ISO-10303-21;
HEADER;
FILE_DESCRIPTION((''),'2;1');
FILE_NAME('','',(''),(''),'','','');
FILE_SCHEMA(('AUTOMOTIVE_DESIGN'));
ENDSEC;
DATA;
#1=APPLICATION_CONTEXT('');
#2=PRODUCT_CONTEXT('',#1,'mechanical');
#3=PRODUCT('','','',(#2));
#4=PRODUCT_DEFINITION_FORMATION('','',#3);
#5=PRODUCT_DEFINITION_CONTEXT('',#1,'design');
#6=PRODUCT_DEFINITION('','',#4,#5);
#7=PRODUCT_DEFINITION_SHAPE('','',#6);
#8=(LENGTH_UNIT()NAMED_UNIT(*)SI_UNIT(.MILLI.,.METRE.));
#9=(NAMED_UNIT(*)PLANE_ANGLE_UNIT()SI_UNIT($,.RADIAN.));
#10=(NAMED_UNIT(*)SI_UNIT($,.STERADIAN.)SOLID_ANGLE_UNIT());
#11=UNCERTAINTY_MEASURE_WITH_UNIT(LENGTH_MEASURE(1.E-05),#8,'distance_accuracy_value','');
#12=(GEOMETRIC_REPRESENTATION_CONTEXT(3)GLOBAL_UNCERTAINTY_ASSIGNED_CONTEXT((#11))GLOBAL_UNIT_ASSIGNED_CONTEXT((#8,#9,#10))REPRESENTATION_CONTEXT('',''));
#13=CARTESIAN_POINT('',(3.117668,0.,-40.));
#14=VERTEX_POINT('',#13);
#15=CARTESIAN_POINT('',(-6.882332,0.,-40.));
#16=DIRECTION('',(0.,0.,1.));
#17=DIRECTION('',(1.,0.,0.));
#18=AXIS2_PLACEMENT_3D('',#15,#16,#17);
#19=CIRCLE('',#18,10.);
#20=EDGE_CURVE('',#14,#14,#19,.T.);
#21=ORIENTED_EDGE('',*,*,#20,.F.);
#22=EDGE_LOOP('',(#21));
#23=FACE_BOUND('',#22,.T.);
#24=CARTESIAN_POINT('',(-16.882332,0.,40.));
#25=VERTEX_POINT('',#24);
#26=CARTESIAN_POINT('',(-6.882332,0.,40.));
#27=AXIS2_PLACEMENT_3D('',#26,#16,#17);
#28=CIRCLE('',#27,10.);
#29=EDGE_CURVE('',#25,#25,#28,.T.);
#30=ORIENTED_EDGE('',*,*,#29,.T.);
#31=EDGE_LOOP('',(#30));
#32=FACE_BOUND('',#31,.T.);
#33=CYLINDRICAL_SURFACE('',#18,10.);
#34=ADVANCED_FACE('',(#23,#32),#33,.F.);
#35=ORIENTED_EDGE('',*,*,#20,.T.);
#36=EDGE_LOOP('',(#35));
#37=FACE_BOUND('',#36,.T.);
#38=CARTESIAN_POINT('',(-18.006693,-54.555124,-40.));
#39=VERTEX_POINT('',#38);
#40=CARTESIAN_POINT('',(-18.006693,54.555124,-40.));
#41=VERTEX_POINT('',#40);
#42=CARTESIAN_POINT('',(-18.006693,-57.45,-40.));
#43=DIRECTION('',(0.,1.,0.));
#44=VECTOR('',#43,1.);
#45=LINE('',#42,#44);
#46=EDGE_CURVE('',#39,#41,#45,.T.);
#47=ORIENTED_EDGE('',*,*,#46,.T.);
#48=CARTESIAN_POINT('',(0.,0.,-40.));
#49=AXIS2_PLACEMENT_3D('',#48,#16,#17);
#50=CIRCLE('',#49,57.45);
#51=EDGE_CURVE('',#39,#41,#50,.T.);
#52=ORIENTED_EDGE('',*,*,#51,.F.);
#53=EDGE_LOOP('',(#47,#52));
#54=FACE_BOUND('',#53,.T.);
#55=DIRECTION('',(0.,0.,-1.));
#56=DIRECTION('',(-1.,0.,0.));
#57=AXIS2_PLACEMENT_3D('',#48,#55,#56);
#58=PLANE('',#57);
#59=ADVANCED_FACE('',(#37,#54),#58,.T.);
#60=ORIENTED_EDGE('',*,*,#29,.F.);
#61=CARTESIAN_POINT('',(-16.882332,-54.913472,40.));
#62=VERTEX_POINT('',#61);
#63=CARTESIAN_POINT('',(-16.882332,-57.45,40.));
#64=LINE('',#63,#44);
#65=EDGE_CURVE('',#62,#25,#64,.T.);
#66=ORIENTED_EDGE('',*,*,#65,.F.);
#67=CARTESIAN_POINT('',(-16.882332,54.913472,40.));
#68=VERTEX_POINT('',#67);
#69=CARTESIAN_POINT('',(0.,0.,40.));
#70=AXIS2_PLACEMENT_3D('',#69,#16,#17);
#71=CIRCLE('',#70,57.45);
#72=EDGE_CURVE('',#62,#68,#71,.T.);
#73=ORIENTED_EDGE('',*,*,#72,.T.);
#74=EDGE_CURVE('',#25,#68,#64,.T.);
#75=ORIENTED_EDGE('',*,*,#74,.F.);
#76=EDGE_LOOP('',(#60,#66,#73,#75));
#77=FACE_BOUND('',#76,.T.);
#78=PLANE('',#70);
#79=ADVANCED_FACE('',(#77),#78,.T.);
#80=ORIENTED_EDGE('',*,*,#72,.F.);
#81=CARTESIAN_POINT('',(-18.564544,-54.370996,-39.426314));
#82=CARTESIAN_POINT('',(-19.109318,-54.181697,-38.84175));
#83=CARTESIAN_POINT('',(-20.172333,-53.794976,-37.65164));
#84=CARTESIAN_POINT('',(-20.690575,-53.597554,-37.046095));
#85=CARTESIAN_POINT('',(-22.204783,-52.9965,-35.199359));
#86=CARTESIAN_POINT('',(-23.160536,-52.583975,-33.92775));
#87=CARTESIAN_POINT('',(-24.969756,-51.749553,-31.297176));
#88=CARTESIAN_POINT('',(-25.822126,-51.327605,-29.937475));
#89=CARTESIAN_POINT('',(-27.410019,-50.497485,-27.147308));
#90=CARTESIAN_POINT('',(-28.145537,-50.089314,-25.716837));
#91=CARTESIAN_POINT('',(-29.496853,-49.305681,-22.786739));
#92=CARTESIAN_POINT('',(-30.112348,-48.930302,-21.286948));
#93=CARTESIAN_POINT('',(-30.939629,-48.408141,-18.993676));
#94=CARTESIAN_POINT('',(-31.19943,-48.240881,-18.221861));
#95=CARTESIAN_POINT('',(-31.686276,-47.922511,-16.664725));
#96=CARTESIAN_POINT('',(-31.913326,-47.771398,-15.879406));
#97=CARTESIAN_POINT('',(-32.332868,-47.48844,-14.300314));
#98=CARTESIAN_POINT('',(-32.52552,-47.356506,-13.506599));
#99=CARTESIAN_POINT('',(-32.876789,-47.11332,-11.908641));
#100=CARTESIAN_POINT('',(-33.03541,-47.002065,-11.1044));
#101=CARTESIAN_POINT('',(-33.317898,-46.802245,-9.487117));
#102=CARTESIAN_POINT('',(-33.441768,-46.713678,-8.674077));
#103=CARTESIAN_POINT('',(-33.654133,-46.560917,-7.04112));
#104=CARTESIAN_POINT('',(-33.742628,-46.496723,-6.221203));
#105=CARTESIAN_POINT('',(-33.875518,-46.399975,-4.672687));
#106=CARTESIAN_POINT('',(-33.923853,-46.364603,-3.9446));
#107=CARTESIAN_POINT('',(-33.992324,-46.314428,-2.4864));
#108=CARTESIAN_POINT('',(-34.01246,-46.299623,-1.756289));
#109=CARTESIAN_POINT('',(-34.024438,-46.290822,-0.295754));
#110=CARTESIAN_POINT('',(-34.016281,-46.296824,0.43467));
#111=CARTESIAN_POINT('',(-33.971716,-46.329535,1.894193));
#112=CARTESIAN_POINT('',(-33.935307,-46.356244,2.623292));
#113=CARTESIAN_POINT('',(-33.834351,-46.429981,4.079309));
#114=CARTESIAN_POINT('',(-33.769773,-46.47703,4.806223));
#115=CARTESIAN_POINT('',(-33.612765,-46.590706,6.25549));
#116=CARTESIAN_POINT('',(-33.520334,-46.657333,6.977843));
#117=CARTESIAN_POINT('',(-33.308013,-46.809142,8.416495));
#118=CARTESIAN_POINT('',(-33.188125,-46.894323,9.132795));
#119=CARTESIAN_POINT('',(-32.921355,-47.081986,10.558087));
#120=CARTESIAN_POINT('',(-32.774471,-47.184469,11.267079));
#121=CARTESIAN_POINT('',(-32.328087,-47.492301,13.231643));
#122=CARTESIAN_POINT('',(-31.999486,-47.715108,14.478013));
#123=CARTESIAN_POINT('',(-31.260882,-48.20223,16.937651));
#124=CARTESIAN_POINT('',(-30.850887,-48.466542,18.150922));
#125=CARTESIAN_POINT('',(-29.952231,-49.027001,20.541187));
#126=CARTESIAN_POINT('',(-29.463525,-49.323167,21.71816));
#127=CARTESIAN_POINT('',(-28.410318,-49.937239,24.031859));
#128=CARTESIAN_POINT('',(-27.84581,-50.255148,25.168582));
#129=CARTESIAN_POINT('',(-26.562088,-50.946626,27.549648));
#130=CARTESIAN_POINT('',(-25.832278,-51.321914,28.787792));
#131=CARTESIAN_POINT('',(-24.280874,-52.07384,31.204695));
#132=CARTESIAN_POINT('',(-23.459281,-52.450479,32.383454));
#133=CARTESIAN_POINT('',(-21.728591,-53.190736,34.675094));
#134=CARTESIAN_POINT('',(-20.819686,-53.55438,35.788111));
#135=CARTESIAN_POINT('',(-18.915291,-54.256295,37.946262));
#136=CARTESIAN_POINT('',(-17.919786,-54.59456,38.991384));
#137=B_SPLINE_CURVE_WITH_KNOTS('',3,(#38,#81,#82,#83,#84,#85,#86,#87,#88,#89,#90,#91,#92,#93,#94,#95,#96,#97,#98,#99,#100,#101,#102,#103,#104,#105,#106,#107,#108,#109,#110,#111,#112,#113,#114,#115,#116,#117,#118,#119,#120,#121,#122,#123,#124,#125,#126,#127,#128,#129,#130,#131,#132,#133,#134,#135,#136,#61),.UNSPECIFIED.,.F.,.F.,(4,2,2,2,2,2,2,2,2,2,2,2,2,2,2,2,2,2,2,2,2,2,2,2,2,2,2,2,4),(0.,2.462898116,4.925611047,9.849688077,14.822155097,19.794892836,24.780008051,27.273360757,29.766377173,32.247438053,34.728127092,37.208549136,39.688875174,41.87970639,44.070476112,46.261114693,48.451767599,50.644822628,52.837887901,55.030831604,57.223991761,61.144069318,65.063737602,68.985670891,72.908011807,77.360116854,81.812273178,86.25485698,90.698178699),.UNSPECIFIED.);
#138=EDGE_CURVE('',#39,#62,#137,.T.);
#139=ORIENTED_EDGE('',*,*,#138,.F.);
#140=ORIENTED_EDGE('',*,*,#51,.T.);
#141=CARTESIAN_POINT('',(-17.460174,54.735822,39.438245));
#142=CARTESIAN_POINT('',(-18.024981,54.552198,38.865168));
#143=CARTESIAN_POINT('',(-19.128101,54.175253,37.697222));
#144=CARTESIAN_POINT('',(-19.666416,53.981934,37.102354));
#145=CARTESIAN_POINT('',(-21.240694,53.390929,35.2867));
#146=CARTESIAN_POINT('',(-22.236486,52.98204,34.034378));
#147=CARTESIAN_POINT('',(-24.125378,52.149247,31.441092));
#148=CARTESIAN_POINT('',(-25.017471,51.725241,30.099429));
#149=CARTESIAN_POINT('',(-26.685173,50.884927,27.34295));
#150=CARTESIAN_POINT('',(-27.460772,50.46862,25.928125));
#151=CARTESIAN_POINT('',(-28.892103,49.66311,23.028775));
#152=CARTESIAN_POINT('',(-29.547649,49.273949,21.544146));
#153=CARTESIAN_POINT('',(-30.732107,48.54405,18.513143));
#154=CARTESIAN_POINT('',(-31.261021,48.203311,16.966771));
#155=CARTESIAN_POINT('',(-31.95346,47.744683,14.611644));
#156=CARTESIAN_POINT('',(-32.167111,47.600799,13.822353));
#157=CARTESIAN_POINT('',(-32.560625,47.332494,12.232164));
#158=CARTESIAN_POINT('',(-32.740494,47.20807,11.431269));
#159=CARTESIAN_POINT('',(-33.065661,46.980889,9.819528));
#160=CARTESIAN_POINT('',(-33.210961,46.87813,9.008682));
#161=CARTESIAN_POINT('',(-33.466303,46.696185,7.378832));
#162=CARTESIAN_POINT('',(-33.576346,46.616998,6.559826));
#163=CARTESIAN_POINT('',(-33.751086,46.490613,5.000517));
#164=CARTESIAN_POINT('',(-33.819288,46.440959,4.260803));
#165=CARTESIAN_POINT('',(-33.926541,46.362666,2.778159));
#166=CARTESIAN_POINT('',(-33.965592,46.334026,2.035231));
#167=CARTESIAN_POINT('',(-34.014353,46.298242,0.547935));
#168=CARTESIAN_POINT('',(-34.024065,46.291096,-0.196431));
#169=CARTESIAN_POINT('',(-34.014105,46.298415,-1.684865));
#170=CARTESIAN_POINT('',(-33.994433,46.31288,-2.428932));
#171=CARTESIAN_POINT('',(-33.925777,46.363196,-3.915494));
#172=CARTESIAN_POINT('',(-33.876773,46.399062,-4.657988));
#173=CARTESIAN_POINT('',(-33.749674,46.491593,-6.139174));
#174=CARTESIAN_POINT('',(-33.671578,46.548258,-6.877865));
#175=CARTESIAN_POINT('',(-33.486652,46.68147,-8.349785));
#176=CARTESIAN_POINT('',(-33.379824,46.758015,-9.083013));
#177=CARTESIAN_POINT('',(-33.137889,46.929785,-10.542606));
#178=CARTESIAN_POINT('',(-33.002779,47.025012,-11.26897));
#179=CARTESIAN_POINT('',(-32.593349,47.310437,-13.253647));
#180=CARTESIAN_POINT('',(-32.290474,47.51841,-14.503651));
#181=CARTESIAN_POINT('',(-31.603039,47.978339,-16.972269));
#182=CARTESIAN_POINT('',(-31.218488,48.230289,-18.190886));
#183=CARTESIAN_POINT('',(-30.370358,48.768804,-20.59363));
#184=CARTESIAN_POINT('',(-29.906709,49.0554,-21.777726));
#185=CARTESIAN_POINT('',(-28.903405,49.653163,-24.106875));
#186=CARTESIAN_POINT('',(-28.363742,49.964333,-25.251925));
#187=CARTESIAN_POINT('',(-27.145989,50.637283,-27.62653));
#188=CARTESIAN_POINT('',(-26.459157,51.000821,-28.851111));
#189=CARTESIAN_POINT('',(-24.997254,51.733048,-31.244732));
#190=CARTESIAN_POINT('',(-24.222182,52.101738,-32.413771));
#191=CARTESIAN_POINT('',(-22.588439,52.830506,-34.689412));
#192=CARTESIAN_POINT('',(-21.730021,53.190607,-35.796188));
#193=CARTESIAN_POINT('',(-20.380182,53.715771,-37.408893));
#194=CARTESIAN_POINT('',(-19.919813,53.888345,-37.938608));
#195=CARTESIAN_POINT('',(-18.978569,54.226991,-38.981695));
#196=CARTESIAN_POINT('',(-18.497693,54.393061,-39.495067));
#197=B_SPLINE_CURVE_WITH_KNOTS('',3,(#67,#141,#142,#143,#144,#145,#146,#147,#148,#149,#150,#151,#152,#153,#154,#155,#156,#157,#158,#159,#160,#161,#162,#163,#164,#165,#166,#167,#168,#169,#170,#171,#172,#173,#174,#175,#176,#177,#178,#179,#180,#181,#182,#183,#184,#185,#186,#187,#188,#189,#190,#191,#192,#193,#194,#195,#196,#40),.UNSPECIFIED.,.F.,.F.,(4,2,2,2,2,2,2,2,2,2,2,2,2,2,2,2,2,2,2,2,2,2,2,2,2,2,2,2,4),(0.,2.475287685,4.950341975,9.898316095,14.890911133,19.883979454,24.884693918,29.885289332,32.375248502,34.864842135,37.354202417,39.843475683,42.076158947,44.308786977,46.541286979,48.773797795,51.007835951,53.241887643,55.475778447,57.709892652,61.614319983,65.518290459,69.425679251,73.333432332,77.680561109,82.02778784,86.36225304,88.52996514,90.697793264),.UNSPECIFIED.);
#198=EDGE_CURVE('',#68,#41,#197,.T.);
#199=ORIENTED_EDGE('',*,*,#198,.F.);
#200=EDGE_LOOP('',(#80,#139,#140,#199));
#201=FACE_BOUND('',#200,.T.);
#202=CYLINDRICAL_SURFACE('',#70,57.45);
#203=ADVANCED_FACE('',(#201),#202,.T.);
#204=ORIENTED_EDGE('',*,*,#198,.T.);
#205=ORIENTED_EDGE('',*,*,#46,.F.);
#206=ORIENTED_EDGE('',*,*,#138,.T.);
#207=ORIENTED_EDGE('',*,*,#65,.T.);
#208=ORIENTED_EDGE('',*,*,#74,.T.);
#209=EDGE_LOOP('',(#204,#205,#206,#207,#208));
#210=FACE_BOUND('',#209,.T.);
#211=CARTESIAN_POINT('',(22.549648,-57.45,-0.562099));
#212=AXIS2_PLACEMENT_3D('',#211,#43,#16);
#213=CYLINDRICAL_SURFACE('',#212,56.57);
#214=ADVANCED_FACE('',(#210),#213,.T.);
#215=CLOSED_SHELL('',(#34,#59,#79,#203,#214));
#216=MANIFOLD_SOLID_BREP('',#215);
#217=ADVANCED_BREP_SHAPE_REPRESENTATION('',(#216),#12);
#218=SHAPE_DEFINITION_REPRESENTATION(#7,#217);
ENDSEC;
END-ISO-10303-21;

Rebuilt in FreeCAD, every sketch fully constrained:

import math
import FreeCAD as App
import Part
import Sketcher
Q = App.Units.Quantity

doc = App.newDocument("Part")
body = doc.addObject("PartDesign::Body", "Body")

# Sketch on XZ plane
sketch1 = body.newObject("Sketcher::SketchObject", "Sketch")
sketch1.AttachmentSupport = (doc.getObject("XZ_Plane"), [""])
sketch1.MapMode = "FlatFace"
sketch1.addGeometry([
    Part.LineSegment(App.Vector(0, -40, 0), App.Vector(0, 40, 0)),
    Part.LineSegment(App.Vector(0, 40, 0), App.Vector(57, 40, 0)),
    Part.LineSegment(App.Vector(57, 40, 0), App.Vector(57, -40, 0)),
    Part.LineSegment(App.Vector(57, -40, 0), App.Vector(0, -40, 0)),
], False)
sketch1.addConstraint([
    Sketcher.Constraint("Coincident", 0, 2, 1, 1),
    Sketcher.Constraint("Coincident", 1, 2, 2, 1),
    Sketcher.Constraint("Coincident", 2, 2, 3, 1),
    Sketcher.Constraint("Coincident", 3, 2, 0, 1),
    Sketcher.Constraint("Vertical", 0),
    Sketcher.Constraint("Horizontal", 1),
    Sketcher.Constraint("Vertical", 2),
    Sketcher.Constraint("Horizontal", 3),
    Sketcher.Constraint("Symmetric", 0, 2, 3, 2, -1, 1),
    Sketcher.Constraint("DistanceY", 0, 1, 0, 2, Q("80 mm")),
    Sketcher.Constraint("DistanceX", 1, 1, 1, 2, Q("57.45 mm")),
])
revolution = body.newObject("PartDesign::Revolution", "Revolution")
revolution.Profile = sketch1
revolution.ReferenceAxis = (sketch1, ["V_Axis"])
revolution.Angle = 360

# Sketch on XZ plane
sketch2 = body.newObject("Sketcher::SketchObject", "Sketch001")
sketch2.AttachmentSupport = (doc.getObject("XZ_Plane"), [""])
sketch2.MapMode = "FlatFace"
sketch2.addGeometry([
    Part.LineSegment(App.Vector(-18, -40, 0), App.Vector(-57, -40, 0)),
    Part.LineSegment(App.Vector(-57, -40, 0), App.Vector(-57, 40, 0)),
    Part.LineSegment(App.Vector(-57, 40, 0), App.Vector(-17, 40, 0)),
    Part.ArcOfCircle(Part.Circle(App.Vector(23, -1, 0), App.Vector(0, 0, 1), 57), math.radians(134), math.radians(224)),
], False)
sketch2.addConstraint([
    Sketcher.Constraint("Coincident", 0, 2, 1, 1),
    Sketcher.Constraint("Coincident", 1, 2, 2, 1),
    Sketcher.Constraint("Coincident", 2, 2, 3, 1),
    Sketcher.Constraint("Coincident", 3, 2, 0, 1),
    Sketcher.Constraint("Horizontal", 0),
    Sketcher.Constraint("Vertical", 1),
    Sketcher.Constraint("Horizontal", 2),
    Sketcher.Constraint("DistanceY", 1, 1, 1, 2, Q("80 mm")),
    Sketcher.Constraint("Radius", 3, Q("56.57 mm")),
    Sketcher.Constraint("DistanceY", 0, 2, -1, 1, Q("40 mm")),
    Sketcher.Constraint("DistanceX", 0, 2, -1, 1, Q("57.45 mm")),
    Sketcher.Constraint("DistanceX", 2, 1, 2, 2, Q("40.567668 mm")),
    Sketcher.Constraint("DistanceY", 3, 3, -1, 1, Q("0.562099 mm")),
])
pocket1 = body.newObject("PartDesign::Pocket", "Pocket")
pocket1.Profile = sketch2
pocket1.Type = "ThroughAll"
pocket1.Midplane = True

# Sketch on XY plane
sketch3 = body.newObject("Sketcher::SketchObject", "Sketch002")
sketch3.AttachmentSupport = (doc.getObject("XY_Plane"), [""])
sketch3.MapMode = "FlatFace"
sketch3.AttachmentOffset = App.Placement(App.Vector(0, 0, 40), App.Rotation())
sketch3.addGeometry(Part.Circle(App.Vector(-7, 0, 0), App.Vector(0, 0, 1), 10), False)
sketch3.addConstraint([
    Sketcher.Constraint("PointOnObject", 0, 3, -1),
    Sketcher.Constraint("Diameter", 0, Q("20 mm")),
    Sketcher.Constraint("DistanceX", 0, 3, -1, 1, Q("6.882332 mm")),
])
pocket2 = body.newObject("PartDesign::Pocket", "Pocket001")
pocket2.Profile = sketch3
pocket2.Type = "ThroughAll"

doc.recompute()
